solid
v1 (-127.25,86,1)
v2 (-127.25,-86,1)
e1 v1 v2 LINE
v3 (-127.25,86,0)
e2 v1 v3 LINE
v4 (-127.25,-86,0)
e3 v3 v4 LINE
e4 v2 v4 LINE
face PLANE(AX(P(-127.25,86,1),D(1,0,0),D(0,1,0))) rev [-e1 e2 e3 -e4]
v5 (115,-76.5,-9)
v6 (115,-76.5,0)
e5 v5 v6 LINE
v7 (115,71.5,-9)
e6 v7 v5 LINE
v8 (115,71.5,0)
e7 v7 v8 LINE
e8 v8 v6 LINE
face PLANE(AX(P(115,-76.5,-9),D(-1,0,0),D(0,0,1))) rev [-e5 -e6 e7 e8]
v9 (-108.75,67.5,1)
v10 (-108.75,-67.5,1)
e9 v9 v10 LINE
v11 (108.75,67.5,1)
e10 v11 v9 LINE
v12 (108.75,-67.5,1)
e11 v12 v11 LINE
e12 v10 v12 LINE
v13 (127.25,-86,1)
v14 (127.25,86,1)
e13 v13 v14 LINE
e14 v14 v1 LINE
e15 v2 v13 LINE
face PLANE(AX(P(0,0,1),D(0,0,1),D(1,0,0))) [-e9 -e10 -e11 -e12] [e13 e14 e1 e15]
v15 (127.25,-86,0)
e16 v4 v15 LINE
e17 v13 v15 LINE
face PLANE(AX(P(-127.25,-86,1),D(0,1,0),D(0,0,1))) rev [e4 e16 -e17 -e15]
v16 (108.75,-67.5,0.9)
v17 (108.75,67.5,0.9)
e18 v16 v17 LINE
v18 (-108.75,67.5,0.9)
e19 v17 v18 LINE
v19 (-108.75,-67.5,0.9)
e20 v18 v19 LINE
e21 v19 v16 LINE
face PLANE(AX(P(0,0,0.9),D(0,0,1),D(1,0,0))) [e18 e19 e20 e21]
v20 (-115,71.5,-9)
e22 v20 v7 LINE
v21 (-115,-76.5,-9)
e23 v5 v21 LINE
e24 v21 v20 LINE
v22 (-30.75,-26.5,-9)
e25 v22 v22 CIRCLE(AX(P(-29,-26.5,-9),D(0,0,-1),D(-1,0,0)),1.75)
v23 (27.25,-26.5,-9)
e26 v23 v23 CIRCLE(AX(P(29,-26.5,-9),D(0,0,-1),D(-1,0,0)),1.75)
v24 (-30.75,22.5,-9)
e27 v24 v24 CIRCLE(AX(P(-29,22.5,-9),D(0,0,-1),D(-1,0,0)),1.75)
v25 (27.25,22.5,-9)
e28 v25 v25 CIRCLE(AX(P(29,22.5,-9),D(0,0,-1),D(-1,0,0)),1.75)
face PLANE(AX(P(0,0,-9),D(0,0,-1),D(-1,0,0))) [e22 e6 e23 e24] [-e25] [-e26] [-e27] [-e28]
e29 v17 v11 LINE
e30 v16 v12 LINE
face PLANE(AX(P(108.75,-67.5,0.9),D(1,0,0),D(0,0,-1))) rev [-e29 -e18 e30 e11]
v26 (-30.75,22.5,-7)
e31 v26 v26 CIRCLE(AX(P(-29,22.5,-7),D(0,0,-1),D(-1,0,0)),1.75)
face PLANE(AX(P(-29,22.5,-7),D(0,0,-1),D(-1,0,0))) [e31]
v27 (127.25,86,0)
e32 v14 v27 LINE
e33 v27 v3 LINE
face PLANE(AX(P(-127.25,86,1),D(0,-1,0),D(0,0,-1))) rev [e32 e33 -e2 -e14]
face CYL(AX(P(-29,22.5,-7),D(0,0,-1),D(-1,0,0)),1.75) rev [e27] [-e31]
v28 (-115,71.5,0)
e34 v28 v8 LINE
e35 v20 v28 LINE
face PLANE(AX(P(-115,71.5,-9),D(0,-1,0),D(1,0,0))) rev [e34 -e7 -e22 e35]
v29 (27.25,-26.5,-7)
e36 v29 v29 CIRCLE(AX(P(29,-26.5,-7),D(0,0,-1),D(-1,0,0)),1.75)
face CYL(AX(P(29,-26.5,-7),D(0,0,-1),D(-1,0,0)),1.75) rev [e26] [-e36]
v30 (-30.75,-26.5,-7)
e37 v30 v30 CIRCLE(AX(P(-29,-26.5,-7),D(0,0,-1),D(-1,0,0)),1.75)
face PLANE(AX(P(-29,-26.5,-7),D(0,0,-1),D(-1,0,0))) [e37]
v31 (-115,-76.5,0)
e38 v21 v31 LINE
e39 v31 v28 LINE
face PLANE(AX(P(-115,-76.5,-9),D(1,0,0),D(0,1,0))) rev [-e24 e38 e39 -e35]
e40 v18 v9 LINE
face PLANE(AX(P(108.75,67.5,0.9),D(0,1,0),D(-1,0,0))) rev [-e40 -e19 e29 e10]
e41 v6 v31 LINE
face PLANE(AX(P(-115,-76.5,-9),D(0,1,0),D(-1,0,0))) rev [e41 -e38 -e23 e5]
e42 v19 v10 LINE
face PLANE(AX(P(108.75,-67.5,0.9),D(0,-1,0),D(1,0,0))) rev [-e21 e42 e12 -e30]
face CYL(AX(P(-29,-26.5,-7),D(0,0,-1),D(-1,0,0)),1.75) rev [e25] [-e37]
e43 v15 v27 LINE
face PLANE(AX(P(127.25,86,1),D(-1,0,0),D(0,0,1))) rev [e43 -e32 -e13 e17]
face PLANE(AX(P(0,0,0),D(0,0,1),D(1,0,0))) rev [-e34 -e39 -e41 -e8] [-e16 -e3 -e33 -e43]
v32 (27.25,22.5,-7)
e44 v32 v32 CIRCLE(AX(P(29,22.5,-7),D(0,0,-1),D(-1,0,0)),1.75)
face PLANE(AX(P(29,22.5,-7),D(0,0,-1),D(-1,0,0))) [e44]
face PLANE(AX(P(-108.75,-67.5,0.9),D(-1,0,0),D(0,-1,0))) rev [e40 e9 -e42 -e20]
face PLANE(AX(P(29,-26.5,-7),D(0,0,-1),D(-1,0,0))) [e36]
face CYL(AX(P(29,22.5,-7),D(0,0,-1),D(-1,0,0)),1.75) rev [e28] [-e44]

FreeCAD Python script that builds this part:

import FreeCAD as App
import Part
import Sketcher

V = App.Vector
Q = App.Units.Quantity

doc = App.newDocument("Part")
body = doc.addObject("PartDesign::Body", "Body")

# Sketch on XY plane
sketch1 = body.newObject("Sketcher::SketchObject", "Sketch")
sketch1.AttachmentSupport = (doc.getObject("XY_Plane"), [""])
sketch1.MapMode = "FlatFace"
sketch1.addGeometry([
    Part.LineSegment(V(-127, 86, 0), V(-127, -86, 0)),
    Part.LineSegment(V(-127, -86, 0), V(127, -86, 0)),
    Part.LineSegment(V(127, -86, 0), V(127, 86, 0)),
    Part.LineSegment(V(127, 86, 0), V(-127, 86, 0)),
], False)
sketch1.addConstraint([
    Sketcher.Constraint("Coincident", 0, 2, 1, 1),
    Sketcher.Constraint("Coincident", 1, 2, 2, 1),
    Sketcher.Constraint("Coincident", 2, 2, 3, 1),
    Sketcher.Constraint("Coincident", 3, 2, 0, 1),
    Sketcher.Constraint("Vertical", 0),
    Sketcher.Constraint("Horizontal", 1),
    Sketcher.Constraint("Vertical", 2),
    Sketcher.Constraint("Horizontal", 3),
    Sketcher.Constraint("Symmetric", 0, 2, 2, 2, -1, 1),
    Sketcher.Constraint("DistanceY", 0, 2, 0, 1, Q("172 mm")),
    Sketcher.Constraint("DistanceX", 1, 1, 1, 2, Q("254.5 mm")),
])
pad1 = body.newObject("PartDesign::Pad", "Pad")
pad1.Profile = sketch1
pad1.Length = 1

# Sketch on XY plane
sketch2 = body.newObject("Sketcher::SketchObject", "Sketch001")
sketch2.AttachmentSupport = (doc.getObject("XY_Plane"), [""])
sketch2.MapMode = "FlatFace"
sketch2.addGeometry([
    Part.LineSegment(V(115, 72, 0), V(115, -76, 0)),
    Part.LineSegment(V(115, -76, 0), V(-115, -76, 0)),
    Part.LineSegment(V(-115, -76, 0), V(-115, 72, 0)),
    Part.LineSegment(V(-115, 72, 0), V(115, 72, 0)),
], False)
sketch2.addConstraint([
    Sketcher.Constraint("Coincident", 0, 2, 1, 1),
    Sketcher.Constraint("Coincident", 1, 2, 2, 1),
    Sketcher.Constraint("Coincident", 2, 2, 3, 1),
    Sketcher.Constraint("Coincident", 3, 2, 0, 1),
    Sketcher.Constraint("Vertical", 0),
    Sketcher.Constraint("Horizontal", 1),
    Sketcher.Constraint("Vertical", 2),
    Sketcher.Constraint("Horizontal", 3),
    Sketcher.Constraint("DistanceX", 1, 2, 1, 1, Q("230 mm")),
    Sketcher.Constraint("DistanceY", 0, 2, 0, 1, Q("148 mm")),
    Sketcher.Constraint("DistanceX", -1, 1, 0, 2, Q("115 mm")),
    Sketcher.Constraint("DistanceY", 0, 2, -1, 1, Q("76.5 mm")),
])
pad2 = body.newObject("PartDesign::Pad", "Pad001")
pad2.Profile = sketch2
pad2.Length = 9
pad2.Reversed = True

# Sketch on XY plane
sketch3 = body.newObject("Sketcher::SketchObject", "Sketch002")
sketch3.AttachmentSupport = (doc.getObject("XY_Plane"), [""])
sketch3.MapMode = "FlatFace"
sketch3.AttachmentOffset = App.Placement(V(0, 0, -9), App.Rotation())
sketch3.addGeometry([
    Part.Circle(V(-29, -26.5, 0), V(0, 0, 1), 1.8),
    Part.Circle(V(29, -26.5, 0), V(0, 0, 1), 1.8),
    Part.Circle(V(29, 22.5, 0), V(0, 0, 1), 1.8),
    Part.Circle(V(-29, 22.5, 0), V(0, 0, 1), 1.8),
], False)
sketch3.addConstraint([
    Sketcher.Constraint("Equal", 0, 1),
    Sketcher.Constraint("Equal", 1, 2),
    Sketcher.Constraint("Equal", 2, 3),
    Sketcher.Constraint("Symmetric", 0, 3, 1, 3, -2),
    Sketcher.Constraint("Symmetric", 2, 3, 3, 3, -2),
    Sketcher.Constraint("Vertical", 1, 3, 2, 3),
    Sketcher.Constraint("Diameter", 0, Q("3.5 mm")),
    Sketcher.Constraint("DistanceX", 0, 3, -1, 1, Q("29 mm")),
    Sketcher.Constraint("DistanceY", 1, 3, 2, 3, Q("49 mm")),
    Sketcher.Constraint("DistanceY", 0, 3, -1, 1, Q("26.5 mm")),
])
pocket1 = body.newObject("PartDesign::Pocket", "Pocket")
pocket1.Profile = sketch3
pocket1.Length = 2
pocket1.Reversed = True

# Sketch on XY plane
sketch4 = body.newObject("Sketcher::SketchObject", "Sketch003")
sketch4.AttachmentSupport = (doc.getObject("XY_Plane"), [""])
sketch4.MapMode = "FlatFace"
sketch4.AttachmentOffset = App.Placement(V(0, 0, 1), App.Rotation())
sketch4.addGeometry([
    Part.LineSegment(V(-109, 68, 0), V(-109, -68, 0)),
    Part.LineSegment(V(-109, -68, 0), V(109, -68, 0)),
    Part.LineSegment(V(109, -68, 0), V(109, 68, 0)),
    Part.LineSegment(V(109, 68, 0), V(-109, 68, 0)),
], False)
sketch4.addConstraint([
    Sketcher.Constraint("Coincident", 0, 2, 1, 1),
    Sketcher.Constraint("Coincident", 1, 2, 2, 1),
    Sketcher.Constraint("Coincident", 2, 2, 3, 1),
    Sketcher.Constraint("Coincident", 3, 2, 0, 1),
    Sketcher.Constraint("Vertical", 0),
    Sketcher.Constraint("Horizontal", 1),
    Sketcher.Constraint("Vertical", 2),
    Sketcher.Constraint("Horizontal", 3),
    Sketcher.Constraint("Symmetric", 0, 2, 2, 2, -1, 1),
    Sketcher.Constraint("DistanceY", 0, 2, 0, 1, Q("135 mm")),
    Sketcher.Constraint("DistanceX", 1, 1, 1, 2, Q("217.5 mm")),
])
pocket2 = body.newObject("PartDesign::Pocket", "Pocket001")
pocket2.Profile = sketch4
pocket2.Length = 0.1

doc.recompute()
